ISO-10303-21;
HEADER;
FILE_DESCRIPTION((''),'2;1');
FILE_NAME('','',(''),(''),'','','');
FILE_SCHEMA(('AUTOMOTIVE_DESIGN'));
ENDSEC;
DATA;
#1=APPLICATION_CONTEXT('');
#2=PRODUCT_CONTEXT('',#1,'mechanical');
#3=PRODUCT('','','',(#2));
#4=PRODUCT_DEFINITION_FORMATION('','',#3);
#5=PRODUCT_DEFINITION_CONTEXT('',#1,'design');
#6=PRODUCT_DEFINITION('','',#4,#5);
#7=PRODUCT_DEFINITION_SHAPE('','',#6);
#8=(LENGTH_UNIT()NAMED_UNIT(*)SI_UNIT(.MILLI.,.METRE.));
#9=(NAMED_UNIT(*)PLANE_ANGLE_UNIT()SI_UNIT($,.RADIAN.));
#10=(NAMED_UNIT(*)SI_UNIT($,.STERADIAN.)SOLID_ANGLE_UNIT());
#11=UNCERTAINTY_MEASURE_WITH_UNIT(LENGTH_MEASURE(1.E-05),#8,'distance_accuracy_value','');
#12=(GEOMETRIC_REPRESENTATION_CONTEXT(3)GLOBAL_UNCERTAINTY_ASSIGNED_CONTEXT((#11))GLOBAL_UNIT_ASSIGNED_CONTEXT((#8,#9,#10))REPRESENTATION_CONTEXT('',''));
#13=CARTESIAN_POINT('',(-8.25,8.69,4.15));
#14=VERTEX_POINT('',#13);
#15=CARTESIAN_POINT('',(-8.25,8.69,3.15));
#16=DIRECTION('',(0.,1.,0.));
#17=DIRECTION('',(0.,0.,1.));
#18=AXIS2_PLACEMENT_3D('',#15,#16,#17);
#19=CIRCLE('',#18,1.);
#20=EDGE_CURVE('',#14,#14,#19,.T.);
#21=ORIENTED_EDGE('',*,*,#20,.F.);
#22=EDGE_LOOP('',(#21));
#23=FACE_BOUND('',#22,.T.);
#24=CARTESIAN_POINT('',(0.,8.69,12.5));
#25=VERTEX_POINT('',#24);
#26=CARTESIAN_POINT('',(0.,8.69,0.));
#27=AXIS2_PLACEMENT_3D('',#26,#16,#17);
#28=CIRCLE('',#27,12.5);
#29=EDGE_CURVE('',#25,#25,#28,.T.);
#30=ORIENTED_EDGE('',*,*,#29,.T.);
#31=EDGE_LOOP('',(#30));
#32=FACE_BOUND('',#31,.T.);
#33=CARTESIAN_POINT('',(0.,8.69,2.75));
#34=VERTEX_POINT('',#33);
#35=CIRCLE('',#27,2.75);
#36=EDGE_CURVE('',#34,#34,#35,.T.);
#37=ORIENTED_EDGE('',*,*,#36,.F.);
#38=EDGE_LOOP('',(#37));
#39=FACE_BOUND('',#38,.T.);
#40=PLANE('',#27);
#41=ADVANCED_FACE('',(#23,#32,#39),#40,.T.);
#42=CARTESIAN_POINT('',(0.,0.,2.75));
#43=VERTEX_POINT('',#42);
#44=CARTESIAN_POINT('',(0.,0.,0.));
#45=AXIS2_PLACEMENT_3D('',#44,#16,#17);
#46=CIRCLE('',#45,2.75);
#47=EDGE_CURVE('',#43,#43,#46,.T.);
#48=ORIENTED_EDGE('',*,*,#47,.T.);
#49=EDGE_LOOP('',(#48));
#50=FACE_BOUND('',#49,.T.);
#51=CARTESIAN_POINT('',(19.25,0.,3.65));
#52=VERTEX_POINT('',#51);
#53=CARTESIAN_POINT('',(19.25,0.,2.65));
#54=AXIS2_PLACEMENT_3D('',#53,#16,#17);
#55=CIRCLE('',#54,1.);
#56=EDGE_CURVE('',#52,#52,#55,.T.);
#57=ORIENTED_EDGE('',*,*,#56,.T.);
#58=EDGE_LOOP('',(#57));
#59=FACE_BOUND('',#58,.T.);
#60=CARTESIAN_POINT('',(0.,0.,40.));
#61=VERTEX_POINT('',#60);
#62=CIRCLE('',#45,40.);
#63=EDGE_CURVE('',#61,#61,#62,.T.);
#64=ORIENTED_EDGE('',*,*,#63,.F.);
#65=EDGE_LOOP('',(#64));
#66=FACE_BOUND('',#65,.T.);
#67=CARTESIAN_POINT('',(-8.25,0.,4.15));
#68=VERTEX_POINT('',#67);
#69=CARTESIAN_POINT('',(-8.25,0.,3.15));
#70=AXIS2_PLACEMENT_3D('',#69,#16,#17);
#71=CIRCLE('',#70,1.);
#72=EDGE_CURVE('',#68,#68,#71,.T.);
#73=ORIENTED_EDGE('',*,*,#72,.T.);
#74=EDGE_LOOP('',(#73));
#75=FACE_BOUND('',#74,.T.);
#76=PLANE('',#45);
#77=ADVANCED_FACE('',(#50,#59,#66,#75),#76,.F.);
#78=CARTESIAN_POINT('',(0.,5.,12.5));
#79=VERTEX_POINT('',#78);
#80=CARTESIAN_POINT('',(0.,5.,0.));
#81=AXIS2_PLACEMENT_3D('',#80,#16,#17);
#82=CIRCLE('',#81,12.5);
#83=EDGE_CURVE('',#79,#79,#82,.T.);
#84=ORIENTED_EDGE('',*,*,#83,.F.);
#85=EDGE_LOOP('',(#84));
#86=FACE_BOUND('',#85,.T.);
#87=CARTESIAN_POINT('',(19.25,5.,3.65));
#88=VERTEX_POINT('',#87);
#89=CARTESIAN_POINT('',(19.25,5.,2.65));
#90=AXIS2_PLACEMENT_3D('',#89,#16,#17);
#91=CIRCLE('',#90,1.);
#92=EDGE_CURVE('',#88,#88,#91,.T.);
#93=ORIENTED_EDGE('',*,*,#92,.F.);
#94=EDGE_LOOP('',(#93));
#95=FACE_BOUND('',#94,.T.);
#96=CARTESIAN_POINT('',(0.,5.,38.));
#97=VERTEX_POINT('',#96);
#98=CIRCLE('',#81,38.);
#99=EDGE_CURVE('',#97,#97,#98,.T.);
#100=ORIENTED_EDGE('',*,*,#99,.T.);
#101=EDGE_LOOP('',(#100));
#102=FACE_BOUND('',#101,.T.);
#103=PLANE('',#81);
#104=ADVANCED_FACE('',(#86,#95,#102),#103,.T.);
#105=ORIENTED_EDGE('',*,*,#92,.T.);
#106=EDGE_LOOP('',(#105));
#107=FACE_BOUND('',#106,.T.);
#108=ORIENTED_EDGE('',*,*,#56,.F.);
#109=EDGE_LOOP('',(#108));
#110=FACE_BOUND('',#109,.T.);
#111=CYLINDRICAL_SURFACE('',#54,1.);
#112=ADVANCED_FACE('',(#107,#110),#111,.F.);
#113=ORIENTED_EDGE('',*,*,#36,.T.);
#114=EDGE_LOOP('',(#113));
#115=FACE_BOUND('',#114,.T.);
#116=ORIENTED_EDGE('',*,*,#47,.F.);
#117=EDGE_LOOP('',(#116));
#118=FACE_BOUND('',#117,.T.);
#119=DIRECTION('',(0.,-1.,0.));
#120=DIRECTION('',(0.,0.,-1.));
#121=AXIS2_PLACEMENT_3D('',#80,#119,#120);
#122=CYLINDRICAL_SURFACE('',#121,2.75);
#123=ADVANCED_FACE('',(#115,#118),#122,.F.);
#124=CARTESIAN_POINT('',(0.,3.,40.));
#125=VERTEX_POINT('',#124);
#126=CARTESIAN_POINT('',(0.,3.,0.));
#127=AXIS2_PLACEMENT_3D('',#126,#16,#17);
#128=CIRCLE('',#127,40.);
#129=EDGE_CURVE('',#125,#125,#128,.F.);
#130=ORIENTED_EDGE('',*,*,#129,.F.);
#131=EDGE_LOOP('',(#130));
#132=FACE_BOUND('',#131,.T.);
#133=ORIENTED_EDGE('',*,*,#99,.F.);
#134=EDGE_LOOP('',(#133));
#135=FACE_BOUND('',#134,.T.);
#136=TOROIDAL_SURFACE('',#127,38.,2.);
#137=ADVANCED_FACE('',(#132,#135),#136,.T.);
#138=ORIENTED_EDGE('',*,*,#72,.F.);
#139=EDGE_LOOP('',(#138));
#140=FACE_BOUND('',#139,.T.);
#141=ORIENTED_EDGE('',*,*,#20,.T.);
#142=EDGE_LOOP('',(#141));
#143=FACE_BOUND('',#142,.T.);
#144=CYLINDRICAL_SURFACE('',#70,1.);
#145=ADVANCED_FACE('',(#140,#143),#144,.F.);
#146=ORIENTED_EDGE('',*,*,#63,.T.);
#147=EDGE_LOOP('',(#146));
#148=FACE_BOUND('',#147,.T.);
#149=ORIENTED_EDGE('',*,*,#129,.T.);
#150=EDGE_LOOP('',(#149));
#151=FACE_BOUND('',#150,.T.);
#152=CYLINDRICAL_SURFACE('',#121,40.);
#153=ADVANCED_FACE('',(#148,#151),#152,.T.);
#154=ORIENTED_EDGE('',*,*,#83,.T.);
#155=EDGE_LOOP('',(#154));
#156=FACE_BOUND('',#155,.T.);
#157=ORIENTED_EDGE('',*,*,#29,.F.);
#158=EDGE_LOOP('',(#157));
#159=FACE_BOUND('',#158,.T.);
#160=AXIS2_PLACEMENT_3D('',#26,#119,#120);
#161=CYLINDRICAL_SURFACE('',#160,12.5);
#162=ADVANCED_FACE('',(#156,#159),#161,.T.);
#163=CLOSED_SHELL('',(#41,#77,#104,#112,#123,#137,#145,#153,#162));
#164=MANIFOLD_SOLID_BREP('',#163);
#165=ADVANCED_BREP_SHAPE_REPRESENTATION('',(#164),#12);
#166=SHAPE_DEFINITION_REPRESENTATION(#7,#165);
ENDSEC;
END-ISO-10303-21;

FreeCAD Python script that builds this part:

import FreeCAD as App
import Part
import Sketcher


def edges_at(feature, points):
    """Names of the edges that pass closest to the given points."""
    edges = feature.Shape.Edges
    near = lambda p: min(range(len(edges)), key=lambda i: edges[i].distToShape(Part.Vertex(*p))[0])
    return sorted({f"Edge{near(p) + 1}" for p in points})

doc = App.newDocument("Part")
body = doc.addObject("PartDesign::Body", "Body")

# Sketch on XZ plane
sketch1 = body.newObject("Sketcher::SketchObject", "Sketch")
sketch1.AttachmentSupport = (doc.getObject("XZ_Plane"), [""])
sketch1.MapMode = "FlatFace"
sketch1.addGeometry([
    Part.Circle(App.Vector(0, 0, 0), App.Vector(0, 0, 1), 40),
    Part.Circle(App.Vector(0, 0, 0), App.Vector(0, 0, 1), 2.8),
], False)
sketch1.addConstraint([
    Sketcher.Constraint("Coincident", 0, 3, -1, 1),
    Sketcher.Constraint("Coincident", 1, 3, -1, 1),
    Sketcher.Constraint("Diameter", 0, 80.0),
    Sketcher.Constraint("Diameter", 1, 5.5),
])
pad1 = body.newObject("PartDesign::Pad", "Pad")
pad1.Profile = sketch1
pad1.Length = 5
pad1.Reversed = True
doc.recompute()

fillet = body.newObject("PartDesign::Fillet", "Fillet")
fillet.Base = (pad1, edges_at(pad1, [(0, 5, -40)]))
fillet.Radius = 2

# Sketch on XZ plane
sketch2 = body.newObject("Sketcher::SketchObject", "Sketch001")
sketch2.AttachmentSupport = (doc.getObject("XZ_Plane"), [""])
sketch2.MapMode = "FlatFace"
sketch2.AttachmentOffset = App.Placement(App.Vector(0, 0, -5), App.Rotation())
sketch2.addGeometry([
    Part.Circle(App.Vector(0, 0, 0), App.Vector(0, 0, 1), 12.5),
    Part.Circle(App.Vector(0, 0, 0), App.Vector(0, 0, 1), 2.8),
], False)
sketch2.addConstraint([
    Sketcher.Constraint("Coincident", 0, 3, -1, 1),
    Sketcher.Constraint("Coincident", 1, 3, -1, 1),
    Sketcher.Constraint("Diameter", 0, 25.0),
    Sketcher.Constraint("Diameter", 1, 5.5),
])
pad2 = body.newObject("PartDesign::Pad", "Pad001")
pad2.Profile = sketch2
pad2.Length = 3.69
pad2.Reversed = True

# Sketch on XZ plane
sketch3 = body.newObject("Sketcher::SketchObject", "Sketch002")
sketch3.AttachmentSupport = (doc.getObject("XZ_Plane"), [""])
sketch3.MapMode = "FlatFace"
sketch3.AttachmentOffset = App.Placement(App.Vector(0, 0, -8.69), App.Rotation())
sketch3.addGeometry([
    Part.Circle(App.Vector(-8.2, 3.1, 0), App.Vector(0, 0, 1), 1),
    Part.Circle(App.Vector(19.2, 2.6, 0), App.Vector(0, 0, 1), 1),
], False)
sketch3.addConstraint([
    Sketcher.Constraint("Equal", 0, 1),
    Sketcher.Constraint("Diameter", 0, 2.0),
    Sketcher.Constraint("DistanceX", 0, 3, 1, 3, 27.5),
    Sketcher.Constraint("DistanceY", 1, 3, 0, 3, 0.5),
    Sketcher.Constraint("DistanceX", 0, 3, -1, 1, 8.25),
    Sketcher.Constraint("DistanceY", -1, 1, 0, 3, 3.15),
])
pocket1 = body.newObject("PartDesign::Pocket", "Pocket")
pocket1.Profile = sketch3
pocket1.Type = "ThroughAll"
pocket1.Reversed = True

doc.recompute()
